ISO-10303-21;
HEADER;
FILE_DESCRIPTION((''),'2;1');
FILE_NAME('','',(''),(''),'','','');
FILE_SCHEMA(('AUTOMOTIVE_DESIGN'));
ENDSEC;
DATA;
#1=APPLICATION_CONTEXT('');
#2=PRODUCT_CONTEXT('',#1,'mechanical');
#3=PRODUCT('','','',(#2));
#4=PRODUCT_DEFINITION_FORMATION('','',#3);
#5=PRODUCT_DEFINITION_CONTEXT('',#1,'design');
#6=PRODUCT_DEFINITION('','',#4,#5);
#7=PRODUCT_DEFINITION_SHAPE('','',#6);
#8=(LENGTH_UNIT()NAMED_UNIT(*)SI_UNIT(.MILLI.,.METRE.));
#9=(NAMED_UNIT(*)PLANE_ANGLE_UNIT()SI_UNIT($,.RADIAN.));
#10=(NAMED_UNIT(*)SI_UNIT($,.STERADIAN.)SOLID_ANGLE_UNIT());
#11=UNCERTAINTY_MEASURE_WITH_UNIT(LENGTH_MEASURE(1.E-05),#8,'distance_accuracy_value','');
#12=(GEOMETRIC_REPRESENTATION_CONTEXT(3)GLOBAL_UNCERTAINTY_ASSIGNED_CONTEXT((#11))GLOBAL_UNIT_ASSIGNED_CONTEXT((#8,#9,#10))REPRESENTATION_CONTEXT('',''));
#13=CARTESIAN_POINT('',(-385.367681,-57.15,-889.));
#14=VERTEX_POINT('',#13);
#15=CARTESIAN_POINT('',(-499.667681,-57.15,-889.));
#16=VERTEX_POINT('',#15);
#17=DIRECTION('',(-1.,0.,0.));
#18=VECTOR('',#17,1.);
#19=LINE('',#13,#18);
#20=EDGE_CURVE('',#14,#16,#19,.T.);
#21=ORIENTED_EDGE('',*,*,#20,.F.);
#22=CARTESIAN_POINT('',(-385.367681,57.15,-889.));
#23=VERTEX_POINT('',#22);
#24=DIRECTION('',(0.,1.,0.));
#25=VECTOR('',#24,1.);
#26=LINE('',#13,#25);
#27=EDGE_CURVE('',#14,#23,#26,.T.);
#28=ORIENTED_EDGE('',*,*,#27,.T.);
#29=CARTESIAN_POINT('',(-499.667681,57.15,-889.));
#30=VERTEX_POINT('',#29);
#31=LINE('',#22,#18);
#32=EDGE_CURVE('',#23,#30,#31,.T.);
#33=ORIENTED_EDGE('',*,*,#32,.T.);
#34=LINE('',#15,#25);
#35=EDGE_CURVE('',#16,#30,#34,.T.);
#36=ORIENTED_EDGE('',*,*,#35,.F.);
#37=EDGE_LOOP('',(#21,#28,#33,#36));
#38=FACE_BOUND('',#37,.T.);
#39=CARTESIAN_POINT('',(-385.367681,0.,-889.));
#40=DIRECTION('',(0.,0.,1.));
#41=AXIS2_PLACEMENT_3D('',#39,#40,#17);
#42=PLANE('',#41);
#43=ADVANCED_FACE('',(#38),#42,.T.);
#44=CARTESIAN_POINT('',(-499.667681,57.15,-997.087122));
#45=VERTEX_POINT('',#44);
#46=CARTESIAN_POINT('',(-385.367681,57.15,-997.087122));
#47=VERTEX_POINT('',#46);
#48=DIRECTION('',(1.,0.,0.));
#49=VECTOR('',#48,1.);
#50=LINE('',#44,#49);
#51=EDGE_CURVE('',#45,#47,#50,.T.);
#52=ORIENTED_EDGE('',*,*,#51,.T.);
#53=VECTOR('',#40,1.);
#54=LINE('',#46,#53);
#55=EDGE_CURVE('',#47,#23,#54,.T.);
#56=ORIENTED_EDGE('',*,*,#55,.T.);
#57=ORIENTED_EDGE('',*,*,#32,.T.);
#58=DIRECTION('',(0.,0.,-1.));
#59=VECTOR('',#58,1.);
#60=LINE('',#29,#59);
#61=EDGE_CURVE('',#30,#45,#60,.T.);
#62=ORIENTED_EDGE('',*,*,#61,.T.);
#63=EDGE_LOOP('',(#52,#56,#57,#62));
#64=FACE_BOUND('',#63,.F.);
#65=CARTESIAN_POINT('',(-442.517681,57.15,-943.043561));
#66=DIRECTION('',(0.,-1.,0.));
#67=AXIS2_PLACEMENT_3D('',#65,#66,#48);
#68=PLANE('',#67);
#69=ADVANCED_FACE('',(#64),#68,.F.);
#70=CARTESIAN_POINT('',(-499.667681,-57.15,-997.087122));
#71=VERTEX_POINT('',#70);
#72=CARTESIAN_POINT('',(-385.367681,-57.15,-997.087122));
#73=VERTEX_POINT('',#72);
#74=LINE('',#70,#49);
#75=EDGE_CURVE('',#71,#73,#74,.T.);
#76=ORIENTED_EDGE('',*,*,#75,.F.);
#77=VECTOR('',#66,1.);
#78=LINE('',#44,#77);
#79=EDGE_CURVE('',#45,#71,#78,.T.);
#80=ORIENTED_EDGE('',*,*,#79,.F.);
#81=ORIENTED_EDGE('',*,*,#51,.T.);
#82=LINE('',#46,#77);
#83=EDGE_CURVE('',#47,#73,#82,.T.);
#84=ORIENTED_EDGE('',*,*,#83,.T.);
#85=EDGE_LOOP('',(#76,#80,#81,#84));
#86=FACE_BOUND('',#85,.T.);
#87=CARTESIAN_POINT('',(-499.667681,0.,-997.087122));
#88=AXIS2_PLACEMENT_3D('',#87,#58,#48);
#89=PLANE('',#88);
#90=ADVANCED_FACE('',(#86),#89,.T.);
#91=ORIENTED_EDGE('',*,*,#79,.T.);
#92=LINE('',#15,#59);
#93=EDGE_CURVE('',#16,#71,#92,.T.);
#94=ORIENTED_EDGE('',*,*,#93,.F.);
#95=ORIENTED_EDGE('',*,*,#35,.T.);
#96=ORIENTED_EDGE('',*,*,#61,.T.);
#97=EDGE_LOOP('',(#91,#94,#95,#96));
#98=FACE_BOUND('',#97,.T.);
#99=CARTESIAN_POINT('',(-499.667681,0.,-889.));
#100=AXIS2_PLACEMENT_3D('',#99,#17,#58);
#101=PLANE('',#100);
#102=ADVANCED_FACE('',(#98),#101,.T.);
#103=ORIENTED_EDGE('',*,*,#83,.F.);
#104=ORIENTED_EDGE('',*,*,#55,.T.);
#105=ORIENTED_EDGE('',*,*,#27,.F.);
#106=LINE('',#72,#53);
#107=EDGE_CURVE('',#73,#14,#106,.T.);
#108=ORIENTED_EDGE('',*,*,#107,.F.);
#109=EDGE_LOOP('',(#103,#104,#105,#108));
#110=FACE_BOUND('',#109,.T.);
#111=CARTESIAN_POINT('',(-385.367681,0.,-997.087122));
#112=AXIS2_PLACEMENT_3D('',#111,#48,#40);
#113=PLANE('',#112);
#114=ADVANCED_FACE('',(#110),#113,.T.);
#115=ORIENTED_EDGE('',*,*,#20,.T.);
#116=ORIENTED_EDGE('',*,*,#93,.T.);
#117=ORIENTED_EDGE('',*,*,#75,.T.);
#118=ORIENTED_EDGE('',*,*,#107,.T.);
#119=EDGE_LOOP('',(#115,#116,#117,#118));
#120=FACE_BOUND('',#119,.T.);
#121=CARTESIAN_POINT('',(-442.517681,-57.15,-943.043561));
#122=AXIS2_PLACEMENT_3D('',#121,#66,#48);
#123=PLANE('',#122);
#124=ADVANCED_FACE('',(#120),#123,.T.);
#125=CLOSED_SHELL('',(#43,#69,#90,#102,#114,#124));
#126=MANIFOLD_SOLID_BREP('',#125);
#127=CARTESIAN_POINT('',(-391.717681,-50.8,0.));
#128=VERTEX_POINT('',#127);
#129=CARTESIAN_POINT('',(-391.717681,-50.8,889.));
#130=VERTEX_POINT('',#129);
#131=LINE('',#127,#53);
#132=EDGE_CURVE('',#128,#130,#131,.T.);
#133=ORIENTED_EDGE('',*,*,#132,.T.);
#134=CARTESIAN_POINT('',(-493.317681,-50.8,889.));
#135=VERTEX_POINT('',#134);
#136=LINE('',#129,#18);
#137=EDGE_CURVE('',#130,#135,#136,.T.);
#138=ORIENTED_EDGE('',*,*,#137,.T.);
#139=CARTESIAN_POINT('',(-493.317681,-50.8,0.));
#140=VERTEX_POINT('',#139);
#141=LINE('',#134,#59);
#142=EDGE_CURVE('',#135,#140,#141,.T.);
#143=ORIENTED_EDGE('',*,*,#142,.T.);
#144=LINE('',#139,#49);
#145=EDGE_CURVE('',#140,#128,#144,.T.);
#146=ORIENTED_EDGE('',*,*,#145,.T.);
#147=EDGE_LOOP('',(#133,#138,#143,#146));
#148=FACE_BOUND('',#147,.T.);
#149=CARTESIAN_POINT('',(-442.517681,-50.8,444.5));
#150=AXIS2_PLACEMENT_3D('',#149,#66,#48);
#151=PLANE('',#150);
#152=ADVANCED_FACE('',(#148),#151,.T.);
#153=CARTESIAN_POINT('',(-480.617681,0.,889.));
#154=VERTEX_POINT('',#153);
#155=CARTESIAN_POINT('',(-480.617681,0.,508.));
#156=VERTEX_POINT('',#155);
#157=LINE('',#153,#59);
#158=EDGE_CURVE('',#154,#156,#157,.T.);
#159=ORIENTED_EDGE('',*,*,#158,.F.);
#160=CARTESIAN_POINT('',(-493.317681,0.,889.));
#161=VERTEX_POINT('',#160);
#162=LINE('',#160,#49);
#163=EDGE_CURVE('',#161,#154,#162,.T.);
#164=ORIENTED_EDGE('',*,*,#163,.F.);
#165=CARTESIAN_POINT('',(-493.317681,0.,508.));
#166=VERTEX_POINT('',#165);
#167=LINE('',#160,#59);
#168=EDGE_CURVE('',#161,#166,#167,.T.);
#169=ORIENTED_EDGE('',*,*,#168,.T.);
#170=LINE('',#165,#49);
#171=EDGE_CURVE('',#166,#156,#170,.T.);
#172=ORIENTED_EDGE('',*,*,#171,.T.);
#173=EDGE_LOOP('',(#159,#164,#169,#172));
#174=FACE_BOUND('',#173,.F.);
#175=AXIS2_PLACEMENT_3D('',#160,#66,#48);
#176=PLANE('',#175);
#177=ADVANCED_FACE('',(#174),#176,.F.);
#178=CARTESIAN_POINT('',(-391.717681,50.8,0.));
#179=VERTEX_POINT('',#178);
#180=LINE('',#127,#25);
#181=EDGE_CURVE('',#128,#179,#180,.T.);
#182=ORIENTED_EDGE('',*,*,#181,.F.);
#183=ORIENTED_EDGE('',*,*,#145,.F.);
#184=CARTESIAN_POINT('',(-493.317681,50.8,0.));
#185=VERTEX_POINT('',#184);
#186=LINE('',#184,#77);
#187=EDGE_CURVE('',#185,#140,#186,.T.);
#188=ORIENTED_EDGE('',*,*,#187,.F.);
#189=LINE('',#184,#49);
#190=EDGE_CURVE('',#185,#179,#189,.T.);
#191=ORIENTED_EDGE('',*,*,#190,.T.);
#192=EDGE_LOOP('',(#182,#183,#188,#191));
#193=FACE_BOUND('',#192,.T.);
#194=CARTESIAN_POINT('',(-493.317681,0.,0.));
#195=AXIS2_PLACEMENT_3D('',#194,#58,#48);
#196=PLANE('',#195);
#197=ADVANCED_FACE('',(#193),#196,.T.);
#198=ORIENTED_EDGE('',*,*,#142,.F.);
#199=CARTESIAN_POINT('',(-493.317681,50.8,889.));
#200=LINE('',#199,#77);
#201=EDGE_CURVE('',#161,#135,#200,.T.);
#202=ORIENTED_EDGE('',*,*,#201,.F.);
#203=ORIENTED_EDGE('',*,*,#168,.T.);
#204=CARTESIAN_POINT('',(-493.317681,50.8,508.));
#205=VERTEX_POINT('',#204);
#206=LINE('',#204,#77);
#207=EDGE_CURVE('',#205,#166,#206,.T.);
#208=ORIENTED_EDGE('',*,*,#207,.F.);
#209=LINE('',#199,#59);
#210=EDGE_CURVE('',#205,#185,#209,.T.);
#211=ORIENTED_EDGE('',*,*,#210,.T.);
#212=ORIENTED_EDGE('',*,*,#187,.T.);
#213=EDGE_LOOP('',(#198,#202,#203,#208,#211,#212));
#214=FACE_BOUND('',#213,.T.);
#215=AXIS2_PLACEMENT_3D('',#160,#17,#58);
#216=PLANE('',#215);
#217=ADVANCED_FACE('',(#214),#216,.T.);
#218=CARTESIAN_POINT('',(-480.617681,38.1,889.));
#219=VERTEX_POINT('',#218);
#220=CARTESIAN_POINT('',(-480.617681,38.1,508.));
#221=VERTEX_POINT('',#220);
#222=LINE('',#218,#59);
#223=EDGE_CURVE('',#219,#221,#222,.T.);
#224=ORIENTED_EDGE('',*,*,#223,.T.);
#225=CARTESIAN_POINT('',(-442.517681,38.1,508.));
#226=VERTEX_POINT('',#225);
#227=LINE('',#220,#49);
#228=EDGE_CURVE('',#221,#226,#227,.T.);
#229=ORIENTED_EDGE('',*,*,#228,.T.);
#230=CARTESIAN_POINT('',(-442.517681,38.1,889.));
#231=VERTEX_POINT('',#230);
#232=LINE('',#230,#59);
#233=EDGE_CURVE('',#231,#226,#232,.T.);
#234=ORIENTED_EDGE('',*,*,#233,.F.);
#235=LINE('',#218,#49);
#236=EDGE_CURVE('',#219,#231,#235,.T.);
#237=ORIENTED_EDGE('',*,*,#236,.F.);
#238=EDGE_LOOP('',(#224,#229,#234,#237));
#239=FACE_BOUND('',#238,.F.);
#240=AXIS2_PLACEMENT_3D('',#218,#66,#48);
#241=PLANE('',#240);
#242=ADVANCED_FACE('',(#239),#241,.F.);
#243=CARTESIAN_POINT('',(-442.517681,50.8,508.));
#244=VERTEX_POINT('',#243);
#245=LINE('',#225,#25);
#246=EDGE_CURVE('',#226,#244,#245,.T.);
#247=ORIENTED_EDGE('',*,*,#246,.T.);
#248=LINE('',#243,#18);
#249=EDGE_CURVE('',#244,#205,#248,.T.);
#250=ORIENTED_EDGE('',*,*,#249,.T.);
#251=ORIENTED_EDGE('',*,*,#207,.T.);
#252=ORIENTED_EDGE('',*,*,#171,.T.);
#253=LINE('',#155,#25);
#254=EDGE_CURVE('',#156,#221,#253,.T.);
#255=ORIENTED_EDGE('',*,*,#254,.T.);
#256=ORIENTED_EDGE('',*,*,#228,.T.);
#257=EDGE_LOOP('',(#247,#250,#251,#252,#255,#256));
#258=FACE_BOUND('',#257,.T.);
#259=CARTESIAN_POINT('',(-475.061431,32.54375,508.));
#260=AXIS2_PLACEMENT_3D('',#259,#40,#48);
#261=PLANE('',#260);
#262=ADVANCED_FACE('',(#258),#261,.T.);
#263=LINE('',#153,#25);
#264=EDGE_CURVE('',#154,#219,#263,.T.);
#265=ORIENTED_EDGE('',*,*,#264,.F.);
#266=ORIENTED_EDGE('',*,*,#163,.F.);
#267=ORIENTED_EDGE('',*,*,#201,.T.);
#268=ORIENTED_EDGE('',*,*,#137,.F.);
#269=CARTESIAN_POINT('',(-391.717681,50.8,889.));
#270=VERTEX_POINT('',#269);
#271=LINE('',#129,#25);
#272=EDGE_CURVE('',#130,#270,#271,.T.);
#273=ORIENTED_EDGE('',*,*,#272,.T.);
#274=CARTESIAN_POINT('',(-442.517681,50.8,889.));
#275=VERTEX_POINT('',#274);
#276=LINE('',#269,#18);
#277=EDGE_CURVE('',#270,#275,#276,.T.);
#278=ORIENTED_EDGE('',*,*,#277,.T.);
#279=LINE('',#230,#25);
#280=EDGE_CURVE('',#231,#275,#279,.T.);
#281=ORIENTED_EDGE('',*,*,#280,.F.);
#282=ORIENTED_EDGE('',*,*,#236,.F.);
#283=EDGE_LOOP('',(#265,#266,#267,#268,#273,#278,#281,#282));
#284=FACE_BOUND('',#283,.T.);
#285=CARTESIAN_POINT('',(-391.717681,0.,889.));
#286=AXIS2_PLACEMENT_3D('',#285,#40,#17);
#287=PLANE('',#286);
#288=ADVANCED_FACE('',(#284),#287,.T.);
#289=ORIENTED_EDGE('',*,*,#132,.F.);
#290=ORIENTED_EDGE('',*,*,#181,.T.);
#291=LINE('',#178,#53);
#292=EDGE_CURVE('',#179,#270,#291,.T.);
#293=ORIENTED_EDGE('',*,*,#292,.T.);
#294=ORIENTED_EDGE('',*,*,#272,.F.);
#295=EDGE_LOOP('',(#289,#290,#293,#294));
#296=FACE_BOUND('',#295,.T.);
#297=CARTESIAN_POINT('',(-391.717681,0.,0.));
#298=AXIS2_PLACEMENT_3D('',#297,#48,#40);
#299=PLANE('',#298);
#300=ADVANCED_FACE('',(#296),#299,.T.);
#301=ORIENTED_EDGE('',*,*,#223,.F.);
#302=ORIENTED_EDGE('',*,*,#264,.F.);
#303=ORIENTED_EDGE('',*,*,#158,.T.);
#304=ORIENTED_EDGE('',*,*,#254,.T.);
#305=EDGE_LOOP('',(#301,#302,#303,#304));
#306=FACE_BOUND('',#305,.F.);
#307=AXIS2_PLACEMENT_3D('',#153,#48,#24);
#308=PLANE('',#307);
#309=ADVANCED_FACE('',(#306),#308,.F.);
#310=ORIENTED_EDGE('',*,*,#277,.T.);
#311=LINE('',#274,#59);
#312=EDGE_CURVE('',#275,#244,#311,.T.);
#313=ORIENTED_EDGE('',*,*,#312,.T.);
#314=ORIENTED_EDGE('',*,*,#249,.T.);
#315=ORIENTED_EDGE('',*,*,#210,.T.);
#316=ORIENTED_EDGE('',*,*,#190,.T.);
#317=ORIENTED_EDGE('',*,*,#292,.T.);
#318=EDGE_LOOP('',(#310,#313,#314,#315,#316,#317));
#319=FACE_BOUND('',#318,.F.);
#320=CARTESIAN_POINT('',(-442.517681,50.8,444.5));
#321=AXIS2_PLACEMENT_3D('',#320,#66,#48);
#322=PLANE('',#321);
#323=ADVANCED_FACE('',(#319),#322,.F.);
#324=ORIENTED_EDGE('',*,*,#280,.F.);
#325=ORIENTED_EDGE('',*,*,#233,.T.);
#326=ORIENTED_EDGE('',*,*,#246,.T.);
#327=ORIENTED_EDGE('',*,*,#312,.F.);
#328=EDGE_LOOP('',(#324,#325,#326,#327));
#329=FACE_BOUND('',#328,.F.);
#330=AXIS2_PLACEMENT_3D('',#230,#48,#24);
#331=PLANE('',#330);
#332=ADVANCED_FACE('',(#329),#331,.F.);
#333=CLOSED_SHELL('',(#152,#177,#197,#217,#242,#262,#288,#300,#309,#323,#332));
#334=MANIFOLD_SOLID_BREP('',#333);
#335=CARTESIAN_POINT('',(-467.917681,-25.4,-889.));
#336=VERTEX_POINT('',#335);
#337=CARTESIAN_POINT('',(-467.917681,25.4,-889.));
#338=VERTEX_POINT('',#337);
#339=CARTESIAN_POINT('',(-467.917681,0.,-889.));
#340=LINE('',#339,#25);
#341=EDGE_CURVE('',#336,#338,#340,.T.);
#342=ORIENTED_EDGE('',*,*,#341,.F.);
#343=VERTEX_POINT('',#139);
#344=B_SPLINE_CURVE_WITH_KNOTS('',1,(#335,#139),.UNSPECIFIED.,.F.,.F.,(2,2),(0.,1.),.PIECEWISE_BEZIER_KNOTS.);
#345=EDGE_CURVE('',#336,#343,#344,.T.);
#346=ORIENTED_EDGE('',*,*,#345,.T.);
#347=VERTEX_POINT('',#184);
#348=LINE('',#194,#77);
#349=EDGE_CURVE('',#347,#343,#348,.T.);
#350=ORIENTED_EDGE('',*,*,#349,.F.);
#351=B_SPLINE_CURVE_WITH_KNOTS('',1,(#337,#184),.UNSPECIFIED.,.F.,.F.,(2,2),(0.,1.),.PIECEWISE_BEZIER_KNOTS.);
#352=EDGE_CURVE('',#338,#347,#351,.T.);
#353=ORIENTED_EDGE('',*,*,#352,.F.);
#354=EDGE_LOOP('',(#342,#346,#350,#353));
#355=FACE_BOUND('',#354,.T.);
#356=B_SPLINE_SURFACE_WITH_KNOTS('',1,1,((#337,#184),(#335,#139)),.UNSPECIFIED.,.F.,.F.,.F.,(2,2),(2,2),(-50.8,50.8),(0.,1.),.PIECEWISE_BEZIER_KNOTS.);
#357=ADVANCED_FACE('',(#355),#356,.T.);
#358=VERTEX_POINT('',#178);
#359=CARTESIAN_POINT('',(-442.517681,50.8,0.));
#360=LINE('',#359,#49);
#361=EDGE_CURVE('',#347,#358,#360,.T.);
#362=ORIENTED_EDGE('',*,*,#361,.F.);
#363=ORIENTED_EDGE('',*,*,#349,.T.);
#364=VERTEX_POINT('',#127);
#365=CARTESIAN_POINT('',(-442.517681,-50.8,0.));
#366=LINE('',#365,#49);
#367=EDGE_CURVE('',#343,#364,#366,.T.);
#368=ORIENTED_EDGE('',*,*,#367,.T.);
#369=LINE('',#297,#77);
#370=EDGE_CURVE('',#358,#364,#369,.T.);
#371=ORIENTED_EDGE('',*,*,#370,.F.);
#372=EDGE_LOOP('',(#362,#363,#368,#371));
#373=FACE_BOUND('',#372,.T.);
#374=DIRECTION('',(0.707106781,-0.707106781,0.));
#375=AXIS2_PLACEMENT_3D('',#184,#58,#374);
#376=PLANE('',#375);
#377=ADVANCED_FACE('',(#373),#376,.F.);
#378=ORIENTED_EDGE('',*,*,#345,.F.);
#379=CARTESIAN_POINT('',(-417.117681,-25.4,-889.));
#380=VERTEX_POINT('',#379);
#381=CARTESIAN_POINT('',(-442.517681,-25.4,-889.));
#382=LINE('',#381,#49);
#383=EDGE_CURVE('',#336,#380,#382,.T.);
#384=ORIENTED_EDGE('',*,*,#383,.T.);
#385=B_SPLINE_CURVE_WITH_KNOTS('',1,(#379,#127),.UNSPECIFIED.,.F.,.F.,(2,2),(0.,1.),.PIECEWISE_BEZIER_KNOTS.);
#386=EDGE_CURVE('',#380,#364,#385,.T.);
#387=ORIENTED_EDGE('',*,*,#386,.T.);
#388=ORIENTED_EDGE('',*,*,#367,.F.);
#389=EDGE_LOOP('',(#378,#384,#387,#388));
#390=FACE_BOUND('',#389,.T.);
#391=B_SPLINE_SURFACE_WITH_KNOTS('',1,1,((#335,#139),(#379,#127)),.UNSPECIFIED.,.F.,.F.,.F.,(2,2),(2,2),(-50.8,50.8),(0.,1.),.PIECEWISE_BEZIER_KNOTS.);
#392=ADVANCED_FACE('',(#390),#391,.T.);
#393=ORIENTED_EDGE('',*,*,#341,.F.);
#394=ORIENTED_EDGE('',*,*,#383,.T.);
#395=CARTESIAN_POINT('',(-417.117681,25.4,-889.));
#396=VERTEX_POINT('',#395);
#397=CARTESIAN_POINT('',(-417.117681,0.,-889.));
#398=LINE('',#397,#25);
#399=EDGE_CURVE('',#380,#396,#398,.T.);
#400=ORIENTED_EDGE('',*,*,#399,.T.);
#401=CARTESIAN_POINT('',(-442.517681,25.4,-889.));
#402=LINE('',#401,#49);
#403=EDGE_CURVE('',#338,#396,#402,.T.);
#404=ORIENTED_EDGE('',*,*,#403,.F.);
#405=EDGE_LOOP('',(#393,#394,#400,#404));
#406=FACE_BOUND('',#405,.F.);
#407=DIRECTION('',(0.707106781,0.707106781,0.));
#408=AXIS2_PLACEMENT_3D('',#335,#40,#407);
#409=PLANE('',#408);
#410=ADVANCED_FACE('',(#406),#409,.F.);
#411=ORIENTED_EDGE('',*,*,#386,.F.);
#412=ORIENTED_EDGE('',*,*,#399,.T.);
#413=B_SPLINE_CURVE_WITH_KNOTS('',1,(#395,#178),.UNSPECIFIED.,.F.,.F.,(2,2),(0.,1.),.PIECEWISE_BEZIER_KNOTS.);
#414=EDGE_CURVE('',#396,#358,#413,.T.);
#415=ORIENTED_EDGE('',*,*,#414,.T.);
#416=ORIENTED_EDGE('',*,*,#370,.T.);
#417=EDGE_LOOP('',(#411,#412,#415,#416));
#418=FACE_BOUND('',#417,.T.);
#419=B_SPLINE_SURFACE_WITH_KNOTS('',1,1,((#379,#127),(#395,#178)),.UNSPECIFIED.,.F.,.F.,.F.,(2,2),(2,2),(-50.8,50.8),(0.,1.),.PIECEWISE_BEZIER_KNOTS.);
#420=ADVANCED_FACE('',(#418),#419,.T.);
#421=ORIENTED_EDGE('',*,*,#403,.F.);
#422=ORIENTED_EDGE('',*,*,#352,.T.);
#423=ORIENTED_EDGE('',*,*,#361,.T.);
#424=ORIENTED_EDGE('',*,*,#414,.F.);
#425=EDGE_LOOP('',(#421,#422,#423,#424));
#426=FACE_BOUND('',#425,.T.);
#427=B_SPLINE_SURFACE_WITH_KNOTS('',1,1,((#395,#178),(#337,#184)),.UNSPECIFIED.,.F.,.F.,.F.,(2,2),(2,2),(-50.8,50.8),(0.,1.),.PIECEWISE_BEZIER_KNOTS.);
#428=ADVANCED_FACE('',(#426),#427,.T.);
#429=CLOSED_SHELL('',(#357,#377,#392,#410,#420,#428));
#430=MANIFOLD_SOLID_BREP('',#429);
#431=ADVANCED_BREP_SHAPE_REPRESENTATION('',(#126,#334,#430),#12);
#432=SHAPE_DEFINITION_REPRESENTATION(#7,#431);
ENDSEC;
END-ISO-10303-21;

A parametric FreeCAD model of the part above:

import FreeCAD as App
import Part
import Sketcher

V = App.Vector
Q = App.Units.Quantity


def add_polygon(sketch, points):
    """Adds a closed chain of lines whose ends are joined by coincident constraints."""
    first, n = sketch.GeometryCount, len(points)
    for a, b in zip(points, points[1:] + points[:1]):
        sketch.addGeometry(Part.LineSegment(App.Vector(*a, 0), App.Vector(*b, 0)), False)
    for i in range(n):
        sketch.addConstraint(Sketcher.Constraint("Coincident", first + i, 2, first + (i + 1) % n, 1))

doc = App.newDocument("Part")
params = doc.addObject("Spreadsheet::Sheet", "Params")
for row, (alias, value) in enumerate([
    ("sketch1_width", "4.5 in"),
    ("pad1_length", "4.5 in"),
    ("sketch2_width", "4 in"),
    ("sketch2_height", "35 in"),
    ("pad2_length", "4 in"),
    ("sketch3_width", "2 in"),
    ("sketch3_width2", "1.5 in"),
    ("pocket1_length", "15 in"),
    ("sketch4_width", "2 in"),
    ("sketch5_width", "4 in"),
], start=1):
    params.set(f"A{row}", alias)
    params.set(f"B{row}", "=" + value)
    params.setAlias(f"B{row}", alias)

body = doc.addObject("PartDesign::Body", "Body")

# Sketch on XZ plane
sketch1 = body.newObject("Sketcher::SketchObject", "Sketch")
sketch1.AttachmentSupport = (doc.getObject("XZ_Plane"), [""])
sketch1.MapMode = "FlatFace"
add_polygon(sketch1, [(-500, -889), (-500, -997), (-385, -997), (-385, -889)])  # lines 0-3
sketch1.addConstraint([
    Sketcher.Constraint("Vertical", 0),
    Sketcher.Constraint("Horizontal", 1),
    Sketcher.Constraint("Vertical", 2),
    Sketcher.Constraint("Horizontal", 3),
    Sketcher.Constraint("DistanceX", 1, 1, 1, 2, Q("4.5 in")),
    Sketcher.Constraint("DistanceY", 2, 2, -1, 1, Q("35 in")),
    Sketcher.Constraint("DistanceY", 0, 2, 0, 1, Q("108.087122 mm")),
    Sketcher.Constraint("DistanceX", 0, 2, -1, 1, Q("499.667681 mm")),
])
sketch1.setExpression("Constraints[8]", "Params.sketch1_width")
pad1 = body.newObject("PartDesign::Pad", "Pad")
pad1.Profile = sketch1
pad1.setExpression("Length", "Params.pad1_length")
pad1.Midplane = True
body2 = doc.addObject("PartDesign::Body", "Body001")

# Sketch on XZ plane
sketch2 = body2.newObject("Sketcher::SketchObject", "Sketch001")
sketch2.AttachmentSupport = (doc.getObject("XZ_Plane001"), [""])
sketch2.MapMode = "FlatFace"
add_polygon(sketch2, [(-392, 889), (-493, 889), (-493, 0), (-392, 0)])  # lines 0-3
sketch2.addConstraint([
    Sketcher.Constraint("Horizontal", 0),
    Sketcher.Constraint("Vertical", 1),
    Sketcher.Constraint("Horizontal", 2),
    Sketcher.Constraint("Vertical", 3),
    Sketcher.Constraint("PointOnObject", 1, 2, -1),
    Sketcher.Constraint("DistanceX", 0, 2, 0, 1, Q("4 in")),
    Sketcher.Constraint("DistanceY", 1, 2, 1, 1, Q("35 in")),
    Sketcher.Constraint("DistanceX", 0, 2, -1, 1, Q("493.317681 mm")),
])
sketch2.setExpression("Constraints[9]", "Params.sketch2_width")
sketch2.setExpression("Constraints[10]", "Params.sketch2_height")
pad2 = body2.newObject("PartDesign::Pad", "Pad001")
pad2.Profile = sketch2
pad2.setExpression("Length", "Params.pad2_length")
pad2.Midplane = True

# Sketch on XY plane
sketch3 = body2.newObject("Sketcher::SketchObject", "Sketch002")
sketch3.AttachmentSupport = (doc.getObject("XY_Plane001"), [""])
sketch3.MapMode = "FlatFace"
sketch3.AttachmentOffset = App.Placement(V(0, 0, 35 * 25.4), App.Rotation())
add_polygon(sketch3, [(-481, 38), (-443, 38), (-443, 51), (-493, 51), (-493, 0), (-481, 0)])  # lines 0-5
sketch3.addConstraint([
    Sketcher.Constraint("Horizontal", 0),
    Sketcher.Constraint("Vertical", 1),
    Sketcher.Constraint("Horizontal", 2),
    Sketcher.Constraint("Vertical", 3),
    Sketcher.Constraint("Horizontal", 4),
    Sketcher.Constraint("Vertical", 5),
    Sketcher.Constraint("PointOnObject", 3, 2, -1),
    Sketcher.Constraint("Equal", 4, 1),
    Sketcher.Constraint("Equal", 2, 3),
    Sketcher.Constraint("DistanceX", 2, 2, 2, 1, Q("2 in")),
    Sketcher.Constraint("DistanceX", 0, 1, 0, 2, Q("1.5 in")),
    Sketcher.Constraint("DistanceX", 0, 2, -1, 1, Q("442.517681 mm")),
])
sketch3.setExpression("Constraints[15]", "Params.sketch3_width")
sketch3.setExpression("Constraints[16]", "Params.sketch3_width2")
pocket1 = body2.newObject("PartDesign::Pocket", "Pocket")
pocket1.Profile = sketch3
pocket1.setExpression("Length", "Params.pocket1_length")
body3 = doc.addObject("PartDesign::Body", "Body002")

# Sketch on XY plane
sketch4 = body3.newObject("Sketcher::SketchObject", "Sketch003")
sketch4.AttachmentSupport = (doc.getObject("XY_Plane002"), [""])
sketch4.MapMode = "FlatFace"
sketch4.AttachmentOffset = App.Placement(V(0, 0, -35 * 25.4), App.Rotation())
add_polygon(sketch4, [(-468, 25), (-468, -25), (-417, -25), (-417, 25)])  # lines 0-3
sketch4.addConstraint([
    Sketcher.Constraint("Vertical", 0),
    Sketcher.Constraint("Horizontal", 1),
    Sketcher.Constraint("Vertical", 2),
    Sketcher.Constraint("Horizontal", 3),
    Sketcher.Constraint("Equal", 3, 0),
    Sketcher.Constraint("DistanceX", 1, 1, 1, 2, Q("2 in")),
    Sketcher.Constraint("DistanceY", 0, 2, -1, 1, Q("1 in")),
    Sketcher.Constraint("DistanceX", 0, 2, -1, 1, Q("467.917681 mm")),
])
sketch4.setExpression("Constraints[9]", "Params.sketch4_width")

# Sketch on XY plane
sketch5 = body3.newObject("Sketcher::SketchObject", "Sketch004")
sketch5.AttachmentSupport = (doc.getObject("XY_Plane002"), [""])
sketch5.MapMode = "FlatFace"
add_polygon(sketch5, [(-493, -51), (-493, 51), (-392, 51), (-392, -51)])  # lines 0-3
sketch5.addConstraint([
    Sketcher.Constraint("Vertical", 0),
    Sketcher.Constraint("Horizontal", 1),
    Sketcher.Constraint("Vertical", 2),
    Sketcher.Constraint("Horizontal", 3),
    Sketcher.Constraint("Equal", 3, 0),
    Sketcher.Constraint("DistanceX", 1, 1, 1, 2, Q("4 in")),
    Sketcher.Constraint("DistanceY", -1, 1, 0, 2, Q("2 in")),
    Sketcher.Constraint("DistanceX", 0, 2, -1, 1, Q("493.317681 mm")),
])
sketch5.setExpression("Constraints[9]", "Params.sketch5_width")

additiveloft = body3.newObject("PartDesign::AdditiveLoft", "AdditiveLoft")
additiveloft.Profile = sketch4
additiveloft.Sections = [sketch5]

doc.recompute()
